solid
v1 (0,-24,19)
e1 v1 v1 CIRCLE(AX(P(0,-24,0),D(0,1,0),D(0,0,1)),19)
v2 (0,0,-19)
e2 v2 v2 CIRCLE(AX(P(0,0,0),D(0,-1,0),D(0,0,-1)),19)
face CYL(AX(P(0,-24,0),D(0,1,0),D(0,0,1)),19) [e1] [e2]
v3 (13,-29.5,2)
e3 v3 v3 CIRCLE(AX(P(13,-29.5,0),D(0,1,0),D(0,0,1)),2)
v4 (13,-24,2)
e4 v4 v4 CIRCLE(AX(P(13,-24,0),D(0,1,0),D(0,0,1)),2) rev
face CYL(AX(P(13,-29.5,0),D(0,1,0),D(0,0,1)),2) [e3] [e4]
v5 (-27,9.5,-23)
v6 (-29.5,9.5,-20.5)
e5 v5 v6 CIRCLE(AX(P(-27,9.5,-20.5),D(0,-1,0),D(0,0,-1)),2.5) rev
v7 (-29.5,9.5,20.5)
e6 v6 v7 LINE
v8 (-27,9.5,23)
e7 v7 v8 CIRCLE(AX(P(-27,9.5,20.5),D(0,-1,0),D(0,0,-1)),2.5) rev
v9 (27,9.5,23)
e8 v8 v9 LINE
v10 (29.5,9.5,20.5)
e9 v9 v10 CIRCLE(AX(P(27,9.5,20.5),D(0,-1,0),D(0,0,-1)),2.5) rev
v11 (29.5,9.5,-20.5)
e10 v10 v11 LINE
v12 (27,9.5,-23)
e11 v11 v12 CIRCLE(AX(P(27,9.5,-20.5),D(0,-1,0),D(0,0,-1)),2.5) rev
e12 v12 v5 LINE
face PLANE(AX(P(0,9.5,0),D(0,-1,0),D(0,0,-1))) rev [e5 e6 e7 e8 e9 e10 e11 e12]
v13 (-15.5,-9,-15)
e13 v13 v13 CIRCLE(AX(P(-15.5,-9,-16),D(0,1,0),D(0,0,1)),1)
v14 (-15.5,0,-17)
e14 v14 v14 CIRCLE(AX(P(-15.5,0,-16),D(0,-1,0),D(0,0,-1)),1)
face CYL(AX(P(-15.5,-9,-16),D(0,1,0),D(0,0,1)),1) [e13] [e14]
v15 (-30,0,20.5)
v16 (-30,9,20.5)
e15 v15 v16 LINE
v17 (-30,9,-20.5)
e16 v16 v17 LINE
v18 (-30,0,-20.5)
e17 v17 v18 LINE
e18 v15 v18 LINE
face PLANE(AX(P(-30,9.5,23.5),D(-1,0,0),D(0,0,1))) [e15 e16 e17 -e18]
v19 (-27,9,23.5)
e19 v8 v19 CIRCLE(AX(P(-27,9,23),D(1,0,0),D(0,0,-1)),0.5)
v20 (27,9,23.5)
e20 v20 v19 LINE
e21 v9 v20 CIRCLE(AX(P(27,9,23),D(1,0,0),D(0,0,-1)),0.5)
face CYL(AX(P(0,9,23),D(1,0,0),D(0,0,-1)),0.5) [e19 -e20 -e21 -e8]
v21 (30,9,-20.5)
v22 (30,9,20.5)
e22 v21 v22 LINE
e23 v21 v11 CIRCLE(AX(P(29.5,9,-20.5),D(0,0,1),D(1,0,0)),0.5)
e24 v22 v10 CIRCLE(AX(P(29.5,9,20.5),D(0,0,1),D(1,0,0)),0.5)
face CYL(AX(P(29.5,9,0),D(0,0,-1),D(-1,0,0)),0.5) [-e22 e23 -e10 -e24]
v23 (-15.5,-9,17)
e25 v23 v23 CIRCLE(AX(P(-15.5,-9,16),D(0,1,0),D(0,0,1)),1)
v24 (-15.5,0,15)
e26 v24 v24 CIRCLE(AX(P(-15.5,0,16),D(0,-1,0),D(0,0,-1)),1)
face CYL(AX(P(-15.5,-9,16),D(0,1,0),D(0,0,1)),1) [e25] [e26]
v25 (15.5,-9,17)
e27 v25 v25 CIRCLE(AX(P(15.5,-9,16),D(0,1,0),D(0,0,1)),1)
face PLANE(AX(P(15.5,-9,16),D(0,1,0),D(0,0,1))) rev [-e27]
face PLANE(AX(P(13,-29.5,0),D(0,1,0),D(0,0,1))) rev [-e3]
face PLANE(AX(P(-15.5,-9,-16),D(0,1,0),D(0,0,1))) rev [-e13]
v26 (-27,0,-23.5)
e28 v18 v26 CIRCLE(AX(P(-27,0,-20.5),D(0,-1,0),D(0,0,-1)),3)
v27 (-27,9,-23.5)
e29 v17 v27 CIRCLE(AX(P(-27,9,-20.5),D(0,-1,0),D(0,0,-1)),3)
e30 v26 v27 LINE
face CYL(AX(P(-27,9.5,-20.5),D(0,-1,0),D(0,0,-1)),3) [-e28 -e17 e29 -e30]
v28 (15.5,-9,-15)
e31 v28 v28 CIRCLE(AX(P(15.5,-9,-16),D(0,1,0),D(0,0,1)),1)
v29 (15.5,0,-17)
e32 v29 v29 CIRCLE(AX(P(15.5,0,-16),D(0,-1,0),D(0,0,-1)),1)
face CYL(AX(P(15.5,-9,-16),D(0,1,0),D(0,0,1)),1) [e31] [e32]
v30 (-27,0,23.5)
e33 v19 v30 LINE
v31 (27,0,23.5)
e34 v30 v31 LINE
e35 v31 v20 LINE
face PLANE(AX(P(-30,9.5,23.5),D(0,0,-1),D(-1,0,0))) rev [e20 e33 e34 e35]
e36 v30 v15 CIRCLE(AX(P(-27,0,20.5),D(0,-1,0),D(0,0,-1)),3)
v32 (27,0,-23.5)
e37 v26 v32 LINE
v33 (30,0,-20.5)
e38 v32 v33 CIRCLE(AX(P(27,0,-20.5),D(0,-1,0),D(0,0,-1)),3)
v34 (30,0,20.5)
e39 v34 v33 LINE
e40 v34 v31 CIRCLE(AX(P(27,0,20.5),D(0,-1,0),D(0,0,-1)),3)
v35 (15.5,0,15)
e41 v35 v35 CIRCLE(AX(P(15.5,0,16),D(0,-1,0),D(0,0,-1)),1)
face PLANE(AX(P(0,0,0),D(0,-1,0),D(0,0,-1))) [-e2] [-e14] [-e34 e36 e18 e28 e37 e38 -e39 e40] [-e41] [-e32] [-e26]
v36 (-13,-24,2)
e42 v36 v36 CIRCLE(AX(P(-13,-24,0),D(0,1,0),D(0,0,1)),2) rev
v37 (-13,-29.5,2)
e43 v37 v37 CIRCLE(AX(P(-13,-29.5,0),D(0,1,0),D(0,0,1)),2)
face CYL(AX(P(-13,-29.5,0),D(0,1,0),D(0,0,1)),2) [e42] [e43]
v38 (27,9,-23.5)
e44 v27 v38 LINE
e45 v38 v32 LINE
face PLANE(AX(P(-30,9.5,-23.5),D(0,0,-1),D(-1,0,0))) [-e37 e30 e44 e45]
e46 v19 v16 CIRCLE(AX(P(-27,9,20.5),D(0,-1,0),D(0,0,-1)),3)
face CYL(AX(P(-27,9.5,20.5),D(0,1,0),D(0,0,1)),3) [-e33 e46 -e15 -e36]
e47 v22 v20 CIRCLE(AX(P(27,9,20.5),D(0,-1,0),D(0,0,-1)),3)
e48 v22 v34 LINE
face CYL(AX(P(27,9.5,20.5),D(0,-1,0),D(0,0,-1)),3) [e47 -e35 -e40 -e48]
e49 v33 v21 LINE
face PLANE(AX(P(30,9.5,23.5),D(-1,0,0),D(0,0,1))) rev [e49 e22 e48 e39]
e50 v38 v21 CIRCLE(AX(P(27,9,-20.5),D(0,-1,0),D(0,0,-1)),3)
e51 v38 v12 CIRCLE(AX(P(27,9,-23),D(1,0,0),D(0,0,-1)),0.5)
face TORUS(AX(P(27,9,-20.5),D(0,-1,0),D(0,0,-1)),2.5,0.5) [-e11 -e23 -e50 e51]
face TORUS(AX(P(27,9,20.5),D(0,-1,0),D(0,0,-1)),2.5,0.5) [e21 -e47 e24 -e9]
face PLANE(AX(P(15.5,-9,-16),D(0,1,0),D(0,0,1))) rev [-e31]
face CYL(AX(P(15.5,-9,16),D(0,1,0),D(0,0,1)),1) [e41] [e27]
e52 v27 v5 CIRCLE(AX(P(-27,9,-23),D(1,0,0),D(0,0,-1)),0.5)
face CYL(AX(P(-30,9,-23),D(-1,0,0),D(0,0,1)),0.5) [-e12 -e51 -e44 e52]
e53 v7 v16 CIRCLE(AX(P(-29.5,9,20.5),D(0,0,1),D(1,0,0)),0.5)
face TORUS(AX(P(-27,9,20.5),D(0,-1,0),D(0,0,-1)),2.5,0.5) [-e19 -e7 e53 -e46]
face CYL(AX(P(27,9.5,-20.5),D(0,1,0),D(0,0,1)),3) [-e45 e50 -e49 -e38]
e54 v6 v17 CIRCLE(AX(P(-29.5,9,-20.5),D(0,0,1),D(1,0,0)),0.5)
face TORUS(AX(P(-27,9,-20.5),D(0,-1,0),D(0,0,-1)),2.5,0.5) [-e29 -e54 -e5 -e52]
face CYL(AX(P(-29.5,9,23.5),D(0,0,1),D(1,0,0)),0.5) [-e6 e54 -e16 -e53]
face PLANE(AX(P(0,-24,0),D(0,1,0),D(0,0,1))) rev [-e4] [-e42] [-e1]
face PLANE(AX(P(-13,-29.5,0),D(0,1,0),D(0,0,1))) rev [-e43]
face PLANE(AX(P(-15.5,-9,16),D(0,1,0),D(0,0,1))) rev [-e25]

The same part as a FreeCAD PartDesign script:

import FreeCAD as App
import Part
import Sketcher
from FreeCAD import Vector
Q = App.Units.Quantity


def edges_at(feature, points):
    """Names of the edges that pass closest to the given points."""
    edges = feature.Shape.Edges
    near = lambda p: min(range(len(edges)), key=lambda i: edges[i].distToShape(Part.Vertex(*p))[0])
    return sorted({f"Edge{near(p) + 1}" for p in points})

doc = App.newDocument("Part")
body = doc.addObject("PartDesign::Body", "Body")

# Sketch on XZ plane
sketch1 = body.newObject("Sketcher::SketchObject", "Sketch")
sketch1.AttachmentSupport = (doc.getObject("XZ_Plane"), [""])
sketch1.MapMode = "FlatFace"
sketch1.addGeometry([
    Part.LineSegment(Vector(-30, -23.5, 0), Vector(-30, 23.5, 0)),
    Part.LineSegment(Vector(-30, 23.5, 0), Vector(30, 23.5, 0)),
    Part.LineSegment(Vector(30, 23.5, 0), Vector(30, -23.5, 0)),
    Part.LineSegment(Vector(30, -23.5, 0), Vector(-30, -23.5, 0)),
], False)
sketch1.addConstraint([
    Sketcher.Constraint("Coincident", 0, 2, 1, 1),
    Sketcher.Constraint("Coincident", 1, 2, 2, 1),
    Sketcher.Constraint("Coincident", 2, 2, 3, 1),
    Sketcher.Constraint("Coincident", 3, 2, 0, 1),
    Sketcher.Constraint("Vertical", 0),
    Sketcher.Constraint("Horizontal", 1),
    Sketcher.Constraint("Vertical", 2),
    Sketcher.Constraint("Horizontal", 3),
    Sketcher.Constraint("Symmetric", 0, 2, 2, 2, -1, 1),
    Sketcher.Constraint("DistanceX", 1, 1, 1, 2, Q("60 mm")),
    Sketcher.Constraint("DistanceY", 0, 1, 0, 2, Q("47 mm")),
])
pad1 = body.newObject("PartDesign::Pad", "Pad")
pad1.Profile = sketch1
pad1.Length = 9.5
pad1.Reversed = True

# Sketch on XZ plane
sketch2 = body.newObject("Sketcher::SketchObject", "Sketch001")
sketch2.AttachmentSupport = (doc.getObject("XZ_Plane"), [""])
sketch2.MapMode = "FlatFace"
sketch2.addGeometry([
    Part.Circle(Vector(-15.5, -16, 0), Vector(0, 0, 1), 1),
    Part.Circle(Vector(15.5, -16, 0), Vector(0, 0, 1), 1),
    Part.Circle(Vector(15.5, 16, 0), Vector(0, 0, 1), 1),
    Part.Circle(Vector(-15.5, 16, 0), Vector(0, 0, 1), 1),
], False)
sketch2.addConstraint([
    Sketcher.Constraint("Equal", 0, 1),
    Sketcher.Constraint("Equal", 1, 2),
    Sketcher.Constraint("Equal", 2, 3),
    Sketcher.Constraint("Symmetric", 0, 3, 2, 3, -1, 1),
    Sketcher.Constraint("Symmetric", 1, 3, 3, 3, -1, 1),
    Sketcher.Constraint("Symmetric", 0, 3, 1, 3, -2),
    Sketcher.Constraint("Diameter", 0, Q("2 mm")),
    Sketcher.Constraint("DistanceY", 0, 3, -1, 1, Q("16 mm")),
    Sketcher.Constraint("DistanceX", 0, 3, 1, 3, Q("31 mm")),
])
pad2 = body.newObject("PartDesign::Pad", "Pad001")
pad2.Profile = sketch2
pad2.Length = 9

# Sketch on XZ plane
sketch3 = body.newObject("Sketcher::SketchObject", "Sketch002")
sketch3.AttachmentSupport = (doc.getObject("XZ_Plane"), [""])
sketch3.MapMode = "FlatFace"
sketch3.addGeometry([
    Part.Circle(Vector(13, 0, 0), Vector(0, 0, 1), 2),
    Part.Circle(Vector(-13, 0, 0), Vector(0, 0, 1), 2),
], False)
sketch3.addConstraint([
    Sketcher.Constraint("Equal", 0, 1),
    Sketcher.Constraint("Symmetric", 0, 3, 1, 3, -1, 1),
    Sketcher.Constraint("PointOnObject", 0, 3, -1),
    Sketcher.Constraint("Diameter", 0, Q("4 mm")),
    Sketcher.Constraint("DistanceX", -1, 1, 0, 3, Q("13 mm")),
])
pad3 = body.newObject("PartDesign::Pad", "Pad002")
pad3.Profile = sketch3
pad3.Length = 29.5

# Sketch on XZ plane
sketch4 = body.newObject("Sketcher::SketchObject", "Sketch003")
sketch4.AttachmentSupport = (doc.getObject("XZ_Plane"), [""])
sketch4.MapMode = "FlatFace"
sketch4.addGeometry(Part.Circle(Vector(0, 0, 0), Vector(0, 0, 1), 19), False)
sketch4.addConstraint([
    Sketcher.Constraint("Coincident", 0, 3, -1, 1),
    Sketcher.Constraint("Diameter", 0, Q("38 mm")),
])
pad4 = body.newObject("PartDesign::Pad", "Pad003")
pad4.Profile = sketch4
pad4.Length = 24
doc.recompute()

fillet = body.newObject("PartDesign::Fillet", "Fillet")
fillet.Base = (pad4, edges_at(pad4, [
    (-30, 4.75, 23.5),
    (30, 4.75, 23.5),
    (30, 4.75, -23.5),
    (-30, 4.75, -23.5),
]))
fillet.Radius = 3
doc.recompute()

fillet2 = body.newObject("PartDesign::Fillet", "Fillet001")
fillet2.Base = (fillet, edges_at(fillet, [
    (0, 9.5, 23.5),
    (-30, 9.5, 0),
    (30, 9.5, 0),
    (0, 9.5, -23.5),
    (29.121, 9.5, -22.621),
    (-29.121, 9.5, -22.621),
    (29.121, 9.5, 22.621),
    (-29.121, 9.5, 22.621),
]))
fillet2.Radius = 0.5

doc.recompute()
